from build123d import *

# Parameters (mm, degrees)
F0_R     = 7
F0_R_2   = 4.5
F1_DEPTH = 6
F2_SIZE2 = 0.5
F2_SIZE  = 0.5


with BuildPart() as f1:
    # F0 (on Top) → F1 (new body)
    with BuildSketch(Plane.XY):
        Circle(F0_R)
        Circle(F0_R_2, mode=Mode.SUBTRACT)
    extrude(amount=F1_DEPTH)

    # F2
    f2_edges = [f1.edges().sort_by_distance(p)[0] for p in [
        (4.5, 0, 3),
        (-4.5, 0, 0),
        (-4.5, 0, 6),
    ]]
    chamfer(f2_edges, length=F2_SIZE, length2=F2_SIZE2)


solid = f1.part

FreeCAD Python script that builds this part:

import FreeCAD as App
import Part
import Sketcher
Q = App.Units.Quantity


def edges_at(feature, points):
    """Names of the edges that pass closest to the given points."""
    edges = feature.Shape.Edges
    near = lambda p: min(range(len(edges)), key=lambda i: edges[i].distToShape(Part.Vertex(*p))[0])
    return sorted({f"Edge{near(p) + 1}" for p in points})

doc = App.newDocument("Part")
body = doc.addObject("PartDesign::Body", "Body")

# Sketch on XY plane
sketch1 = body.newObject("Sketcher::SketchObject", "Sketch")
sketch1.AttachmentSupport = (doc.getObject("XY_Plane"), [""])
sketch1.MapMode = "FlatFace"
sketch1.addGeometry([
    Part.Circle(App.Vector(0, 0, 0), App.Vector(0, 0, 1), 7),
    Part.Circle(App.Vector(0, 0, 0), App.Vector(0, 0, 1), 4.5),
], False)
sketch1.addConstraint([
    Sketcher.Constraint("Coincident", 0, 3, -1, 1),
    Sketcher.Constraint("Coincident", 1, 3, -1, 1),
    Sketcher.Constraint("Diameter", 0, Q("14 mm")),
    Sketcher.Constraint("Diameter", 1, Q("9 mm")),
])
pad1 = body.newObject("PartDesign::Pad", "Pad")
pad1.Profile = sketch1
pad1.Length = 6
doc.recompute()

chamfer = body.newObject("PartDesign::Chamfer", "Chamfer")
chamfer.Base = (pad1, edges_at(pad1, [(4.5, 0, 3), (-4.5, 0, 0), (-4.5, 0, 6)]))
chamfer.ChamferType = "Two distances"
chamfer.Size = 0.5
chamfer.Size2 = 0.5

doc.recompute()
